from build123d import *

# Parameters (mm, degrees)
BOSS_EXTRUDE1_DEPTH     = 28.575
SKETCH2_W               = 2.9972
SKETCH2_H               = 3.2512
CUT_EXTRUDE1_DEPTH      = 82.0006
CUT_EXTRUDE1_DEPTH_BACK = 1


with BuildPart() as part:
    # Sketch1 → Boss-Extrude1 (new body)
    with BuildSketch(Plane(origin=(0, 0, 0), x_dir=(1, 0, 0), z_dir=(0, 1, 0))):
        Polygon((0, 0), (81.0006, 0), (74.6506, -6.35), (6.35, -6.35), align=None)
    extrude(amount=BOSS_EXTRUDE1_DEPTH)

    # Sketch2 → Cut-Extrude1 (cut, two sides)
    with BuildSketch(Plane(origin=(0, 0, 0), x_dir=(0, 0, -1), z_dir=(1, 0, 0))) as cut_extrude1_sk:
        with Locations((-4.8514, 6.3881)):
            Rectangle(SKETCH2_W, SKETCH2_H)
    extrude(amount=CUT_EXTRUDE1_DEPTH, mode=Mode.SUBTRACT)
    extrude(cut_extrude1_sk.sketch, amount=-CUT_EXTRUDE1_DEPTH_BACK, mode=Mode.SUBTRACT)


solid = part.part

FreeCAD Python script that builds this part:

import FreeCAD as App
import Part
import Sketcher
Q = App.Units.Quantity


def add_polygon(sketch, points):
    """Adds a closed chain of lines whose ends are joined by coincident constraints."""
    first, n = sketch.GeometryCount, len(points)
    for a, b in zip(points, points[1:] + points[:1]):
        sketch.addGeometry(Part.LineSegment(App.Vector(*a, 0), App.Vector(*b, 0)), False)
    for i in range(n):
        sketch.addConstraint(Sketcher.Constraint("Coincident", first + i, 2, first + (i + 1) % n, 1))

doc = App.newDocument("Part")
body = doc.addObject("PartDesign::Body", "Body")

sketch1 = doc.addObject("Sketcher::SketchObject", "Sketch")
body.addObject(sketch1)
sketch1.AttachmentSupport = (doc.XZ_Plane, [""])
sketch1.MapMode = "FlatFace"
add_polygon(sketch1, [(81, 0), (0, 0), (6, 6), (75, 6)])
sketch1.addConstraint([
    Sketcher.Constraint("Horizontal", 0),
    Sketcher.Constraint("Horizontal", 2),
    Sketcher.Constraint("Coincident", 0, 2, -1, 1),
    Sketcher.Constraint("Perpendicular", 1, 3),
    Sketcher.Constraint("Equal", 1, 3),
    Sketcher.Constraint("DistanceX", 0, 2, 0, 1, Q("3.189 in")),
    Sketcher.Constraint("DistanceX", 2, 1, 2, 2, Q("2.689 in")),
])
pad1 = doc.addObject("PartDesign::Pad", "Pad")
body.addObject(pad1)
pad1.Profile = sketch1
pad1.Length = Q("1.125 in")
pad1.Reversed = True

sketch2 = doc.addObject("Sketcher::SketchObject", "Sketch001")
body.addObject(sketch2)
sketch2.AttachmentSupport = (doc.YZ_Plane, [""])
sketch2.MapMode = "FlatFace"
add_polygon(sketch2, [(8, 6.3), (4.8, 6.3), (4.8, 3.4), (8, 3.4)])
sketch2.addConstraint([
    Sketcher.Constraint("Horizontal", 0),
    Sketcher.Constraint("Vertical", 1),
    Sketcher.Constraint("Horizontal", 2),
    Sketcher.Constraint("Vertical", 3),
    Sketcher.Constraint("DistanceX", 0, 2, 0, 1, Q("0.128 in")),
    Sketcher.Constraint("DistanceY", 1, 2, 1, 1, Q("0.118 in")),
    Sketcher.Constraint("DistanceY", -1, 1, 0, 2, Q("0.25 in")),
    Sketcher.Constraint("DistanceX", -1, 1, 0, 2, Q("0.1875 in")),
])
pocket1 = doc.addObject("PartDesign::Pocket", "Pocket")
body.addObject(pocket1)
pocket1.Profile = sketch2
pocket1.Type = "ThroughAll"
pocket1.Midplane = True

doc.recompute()
